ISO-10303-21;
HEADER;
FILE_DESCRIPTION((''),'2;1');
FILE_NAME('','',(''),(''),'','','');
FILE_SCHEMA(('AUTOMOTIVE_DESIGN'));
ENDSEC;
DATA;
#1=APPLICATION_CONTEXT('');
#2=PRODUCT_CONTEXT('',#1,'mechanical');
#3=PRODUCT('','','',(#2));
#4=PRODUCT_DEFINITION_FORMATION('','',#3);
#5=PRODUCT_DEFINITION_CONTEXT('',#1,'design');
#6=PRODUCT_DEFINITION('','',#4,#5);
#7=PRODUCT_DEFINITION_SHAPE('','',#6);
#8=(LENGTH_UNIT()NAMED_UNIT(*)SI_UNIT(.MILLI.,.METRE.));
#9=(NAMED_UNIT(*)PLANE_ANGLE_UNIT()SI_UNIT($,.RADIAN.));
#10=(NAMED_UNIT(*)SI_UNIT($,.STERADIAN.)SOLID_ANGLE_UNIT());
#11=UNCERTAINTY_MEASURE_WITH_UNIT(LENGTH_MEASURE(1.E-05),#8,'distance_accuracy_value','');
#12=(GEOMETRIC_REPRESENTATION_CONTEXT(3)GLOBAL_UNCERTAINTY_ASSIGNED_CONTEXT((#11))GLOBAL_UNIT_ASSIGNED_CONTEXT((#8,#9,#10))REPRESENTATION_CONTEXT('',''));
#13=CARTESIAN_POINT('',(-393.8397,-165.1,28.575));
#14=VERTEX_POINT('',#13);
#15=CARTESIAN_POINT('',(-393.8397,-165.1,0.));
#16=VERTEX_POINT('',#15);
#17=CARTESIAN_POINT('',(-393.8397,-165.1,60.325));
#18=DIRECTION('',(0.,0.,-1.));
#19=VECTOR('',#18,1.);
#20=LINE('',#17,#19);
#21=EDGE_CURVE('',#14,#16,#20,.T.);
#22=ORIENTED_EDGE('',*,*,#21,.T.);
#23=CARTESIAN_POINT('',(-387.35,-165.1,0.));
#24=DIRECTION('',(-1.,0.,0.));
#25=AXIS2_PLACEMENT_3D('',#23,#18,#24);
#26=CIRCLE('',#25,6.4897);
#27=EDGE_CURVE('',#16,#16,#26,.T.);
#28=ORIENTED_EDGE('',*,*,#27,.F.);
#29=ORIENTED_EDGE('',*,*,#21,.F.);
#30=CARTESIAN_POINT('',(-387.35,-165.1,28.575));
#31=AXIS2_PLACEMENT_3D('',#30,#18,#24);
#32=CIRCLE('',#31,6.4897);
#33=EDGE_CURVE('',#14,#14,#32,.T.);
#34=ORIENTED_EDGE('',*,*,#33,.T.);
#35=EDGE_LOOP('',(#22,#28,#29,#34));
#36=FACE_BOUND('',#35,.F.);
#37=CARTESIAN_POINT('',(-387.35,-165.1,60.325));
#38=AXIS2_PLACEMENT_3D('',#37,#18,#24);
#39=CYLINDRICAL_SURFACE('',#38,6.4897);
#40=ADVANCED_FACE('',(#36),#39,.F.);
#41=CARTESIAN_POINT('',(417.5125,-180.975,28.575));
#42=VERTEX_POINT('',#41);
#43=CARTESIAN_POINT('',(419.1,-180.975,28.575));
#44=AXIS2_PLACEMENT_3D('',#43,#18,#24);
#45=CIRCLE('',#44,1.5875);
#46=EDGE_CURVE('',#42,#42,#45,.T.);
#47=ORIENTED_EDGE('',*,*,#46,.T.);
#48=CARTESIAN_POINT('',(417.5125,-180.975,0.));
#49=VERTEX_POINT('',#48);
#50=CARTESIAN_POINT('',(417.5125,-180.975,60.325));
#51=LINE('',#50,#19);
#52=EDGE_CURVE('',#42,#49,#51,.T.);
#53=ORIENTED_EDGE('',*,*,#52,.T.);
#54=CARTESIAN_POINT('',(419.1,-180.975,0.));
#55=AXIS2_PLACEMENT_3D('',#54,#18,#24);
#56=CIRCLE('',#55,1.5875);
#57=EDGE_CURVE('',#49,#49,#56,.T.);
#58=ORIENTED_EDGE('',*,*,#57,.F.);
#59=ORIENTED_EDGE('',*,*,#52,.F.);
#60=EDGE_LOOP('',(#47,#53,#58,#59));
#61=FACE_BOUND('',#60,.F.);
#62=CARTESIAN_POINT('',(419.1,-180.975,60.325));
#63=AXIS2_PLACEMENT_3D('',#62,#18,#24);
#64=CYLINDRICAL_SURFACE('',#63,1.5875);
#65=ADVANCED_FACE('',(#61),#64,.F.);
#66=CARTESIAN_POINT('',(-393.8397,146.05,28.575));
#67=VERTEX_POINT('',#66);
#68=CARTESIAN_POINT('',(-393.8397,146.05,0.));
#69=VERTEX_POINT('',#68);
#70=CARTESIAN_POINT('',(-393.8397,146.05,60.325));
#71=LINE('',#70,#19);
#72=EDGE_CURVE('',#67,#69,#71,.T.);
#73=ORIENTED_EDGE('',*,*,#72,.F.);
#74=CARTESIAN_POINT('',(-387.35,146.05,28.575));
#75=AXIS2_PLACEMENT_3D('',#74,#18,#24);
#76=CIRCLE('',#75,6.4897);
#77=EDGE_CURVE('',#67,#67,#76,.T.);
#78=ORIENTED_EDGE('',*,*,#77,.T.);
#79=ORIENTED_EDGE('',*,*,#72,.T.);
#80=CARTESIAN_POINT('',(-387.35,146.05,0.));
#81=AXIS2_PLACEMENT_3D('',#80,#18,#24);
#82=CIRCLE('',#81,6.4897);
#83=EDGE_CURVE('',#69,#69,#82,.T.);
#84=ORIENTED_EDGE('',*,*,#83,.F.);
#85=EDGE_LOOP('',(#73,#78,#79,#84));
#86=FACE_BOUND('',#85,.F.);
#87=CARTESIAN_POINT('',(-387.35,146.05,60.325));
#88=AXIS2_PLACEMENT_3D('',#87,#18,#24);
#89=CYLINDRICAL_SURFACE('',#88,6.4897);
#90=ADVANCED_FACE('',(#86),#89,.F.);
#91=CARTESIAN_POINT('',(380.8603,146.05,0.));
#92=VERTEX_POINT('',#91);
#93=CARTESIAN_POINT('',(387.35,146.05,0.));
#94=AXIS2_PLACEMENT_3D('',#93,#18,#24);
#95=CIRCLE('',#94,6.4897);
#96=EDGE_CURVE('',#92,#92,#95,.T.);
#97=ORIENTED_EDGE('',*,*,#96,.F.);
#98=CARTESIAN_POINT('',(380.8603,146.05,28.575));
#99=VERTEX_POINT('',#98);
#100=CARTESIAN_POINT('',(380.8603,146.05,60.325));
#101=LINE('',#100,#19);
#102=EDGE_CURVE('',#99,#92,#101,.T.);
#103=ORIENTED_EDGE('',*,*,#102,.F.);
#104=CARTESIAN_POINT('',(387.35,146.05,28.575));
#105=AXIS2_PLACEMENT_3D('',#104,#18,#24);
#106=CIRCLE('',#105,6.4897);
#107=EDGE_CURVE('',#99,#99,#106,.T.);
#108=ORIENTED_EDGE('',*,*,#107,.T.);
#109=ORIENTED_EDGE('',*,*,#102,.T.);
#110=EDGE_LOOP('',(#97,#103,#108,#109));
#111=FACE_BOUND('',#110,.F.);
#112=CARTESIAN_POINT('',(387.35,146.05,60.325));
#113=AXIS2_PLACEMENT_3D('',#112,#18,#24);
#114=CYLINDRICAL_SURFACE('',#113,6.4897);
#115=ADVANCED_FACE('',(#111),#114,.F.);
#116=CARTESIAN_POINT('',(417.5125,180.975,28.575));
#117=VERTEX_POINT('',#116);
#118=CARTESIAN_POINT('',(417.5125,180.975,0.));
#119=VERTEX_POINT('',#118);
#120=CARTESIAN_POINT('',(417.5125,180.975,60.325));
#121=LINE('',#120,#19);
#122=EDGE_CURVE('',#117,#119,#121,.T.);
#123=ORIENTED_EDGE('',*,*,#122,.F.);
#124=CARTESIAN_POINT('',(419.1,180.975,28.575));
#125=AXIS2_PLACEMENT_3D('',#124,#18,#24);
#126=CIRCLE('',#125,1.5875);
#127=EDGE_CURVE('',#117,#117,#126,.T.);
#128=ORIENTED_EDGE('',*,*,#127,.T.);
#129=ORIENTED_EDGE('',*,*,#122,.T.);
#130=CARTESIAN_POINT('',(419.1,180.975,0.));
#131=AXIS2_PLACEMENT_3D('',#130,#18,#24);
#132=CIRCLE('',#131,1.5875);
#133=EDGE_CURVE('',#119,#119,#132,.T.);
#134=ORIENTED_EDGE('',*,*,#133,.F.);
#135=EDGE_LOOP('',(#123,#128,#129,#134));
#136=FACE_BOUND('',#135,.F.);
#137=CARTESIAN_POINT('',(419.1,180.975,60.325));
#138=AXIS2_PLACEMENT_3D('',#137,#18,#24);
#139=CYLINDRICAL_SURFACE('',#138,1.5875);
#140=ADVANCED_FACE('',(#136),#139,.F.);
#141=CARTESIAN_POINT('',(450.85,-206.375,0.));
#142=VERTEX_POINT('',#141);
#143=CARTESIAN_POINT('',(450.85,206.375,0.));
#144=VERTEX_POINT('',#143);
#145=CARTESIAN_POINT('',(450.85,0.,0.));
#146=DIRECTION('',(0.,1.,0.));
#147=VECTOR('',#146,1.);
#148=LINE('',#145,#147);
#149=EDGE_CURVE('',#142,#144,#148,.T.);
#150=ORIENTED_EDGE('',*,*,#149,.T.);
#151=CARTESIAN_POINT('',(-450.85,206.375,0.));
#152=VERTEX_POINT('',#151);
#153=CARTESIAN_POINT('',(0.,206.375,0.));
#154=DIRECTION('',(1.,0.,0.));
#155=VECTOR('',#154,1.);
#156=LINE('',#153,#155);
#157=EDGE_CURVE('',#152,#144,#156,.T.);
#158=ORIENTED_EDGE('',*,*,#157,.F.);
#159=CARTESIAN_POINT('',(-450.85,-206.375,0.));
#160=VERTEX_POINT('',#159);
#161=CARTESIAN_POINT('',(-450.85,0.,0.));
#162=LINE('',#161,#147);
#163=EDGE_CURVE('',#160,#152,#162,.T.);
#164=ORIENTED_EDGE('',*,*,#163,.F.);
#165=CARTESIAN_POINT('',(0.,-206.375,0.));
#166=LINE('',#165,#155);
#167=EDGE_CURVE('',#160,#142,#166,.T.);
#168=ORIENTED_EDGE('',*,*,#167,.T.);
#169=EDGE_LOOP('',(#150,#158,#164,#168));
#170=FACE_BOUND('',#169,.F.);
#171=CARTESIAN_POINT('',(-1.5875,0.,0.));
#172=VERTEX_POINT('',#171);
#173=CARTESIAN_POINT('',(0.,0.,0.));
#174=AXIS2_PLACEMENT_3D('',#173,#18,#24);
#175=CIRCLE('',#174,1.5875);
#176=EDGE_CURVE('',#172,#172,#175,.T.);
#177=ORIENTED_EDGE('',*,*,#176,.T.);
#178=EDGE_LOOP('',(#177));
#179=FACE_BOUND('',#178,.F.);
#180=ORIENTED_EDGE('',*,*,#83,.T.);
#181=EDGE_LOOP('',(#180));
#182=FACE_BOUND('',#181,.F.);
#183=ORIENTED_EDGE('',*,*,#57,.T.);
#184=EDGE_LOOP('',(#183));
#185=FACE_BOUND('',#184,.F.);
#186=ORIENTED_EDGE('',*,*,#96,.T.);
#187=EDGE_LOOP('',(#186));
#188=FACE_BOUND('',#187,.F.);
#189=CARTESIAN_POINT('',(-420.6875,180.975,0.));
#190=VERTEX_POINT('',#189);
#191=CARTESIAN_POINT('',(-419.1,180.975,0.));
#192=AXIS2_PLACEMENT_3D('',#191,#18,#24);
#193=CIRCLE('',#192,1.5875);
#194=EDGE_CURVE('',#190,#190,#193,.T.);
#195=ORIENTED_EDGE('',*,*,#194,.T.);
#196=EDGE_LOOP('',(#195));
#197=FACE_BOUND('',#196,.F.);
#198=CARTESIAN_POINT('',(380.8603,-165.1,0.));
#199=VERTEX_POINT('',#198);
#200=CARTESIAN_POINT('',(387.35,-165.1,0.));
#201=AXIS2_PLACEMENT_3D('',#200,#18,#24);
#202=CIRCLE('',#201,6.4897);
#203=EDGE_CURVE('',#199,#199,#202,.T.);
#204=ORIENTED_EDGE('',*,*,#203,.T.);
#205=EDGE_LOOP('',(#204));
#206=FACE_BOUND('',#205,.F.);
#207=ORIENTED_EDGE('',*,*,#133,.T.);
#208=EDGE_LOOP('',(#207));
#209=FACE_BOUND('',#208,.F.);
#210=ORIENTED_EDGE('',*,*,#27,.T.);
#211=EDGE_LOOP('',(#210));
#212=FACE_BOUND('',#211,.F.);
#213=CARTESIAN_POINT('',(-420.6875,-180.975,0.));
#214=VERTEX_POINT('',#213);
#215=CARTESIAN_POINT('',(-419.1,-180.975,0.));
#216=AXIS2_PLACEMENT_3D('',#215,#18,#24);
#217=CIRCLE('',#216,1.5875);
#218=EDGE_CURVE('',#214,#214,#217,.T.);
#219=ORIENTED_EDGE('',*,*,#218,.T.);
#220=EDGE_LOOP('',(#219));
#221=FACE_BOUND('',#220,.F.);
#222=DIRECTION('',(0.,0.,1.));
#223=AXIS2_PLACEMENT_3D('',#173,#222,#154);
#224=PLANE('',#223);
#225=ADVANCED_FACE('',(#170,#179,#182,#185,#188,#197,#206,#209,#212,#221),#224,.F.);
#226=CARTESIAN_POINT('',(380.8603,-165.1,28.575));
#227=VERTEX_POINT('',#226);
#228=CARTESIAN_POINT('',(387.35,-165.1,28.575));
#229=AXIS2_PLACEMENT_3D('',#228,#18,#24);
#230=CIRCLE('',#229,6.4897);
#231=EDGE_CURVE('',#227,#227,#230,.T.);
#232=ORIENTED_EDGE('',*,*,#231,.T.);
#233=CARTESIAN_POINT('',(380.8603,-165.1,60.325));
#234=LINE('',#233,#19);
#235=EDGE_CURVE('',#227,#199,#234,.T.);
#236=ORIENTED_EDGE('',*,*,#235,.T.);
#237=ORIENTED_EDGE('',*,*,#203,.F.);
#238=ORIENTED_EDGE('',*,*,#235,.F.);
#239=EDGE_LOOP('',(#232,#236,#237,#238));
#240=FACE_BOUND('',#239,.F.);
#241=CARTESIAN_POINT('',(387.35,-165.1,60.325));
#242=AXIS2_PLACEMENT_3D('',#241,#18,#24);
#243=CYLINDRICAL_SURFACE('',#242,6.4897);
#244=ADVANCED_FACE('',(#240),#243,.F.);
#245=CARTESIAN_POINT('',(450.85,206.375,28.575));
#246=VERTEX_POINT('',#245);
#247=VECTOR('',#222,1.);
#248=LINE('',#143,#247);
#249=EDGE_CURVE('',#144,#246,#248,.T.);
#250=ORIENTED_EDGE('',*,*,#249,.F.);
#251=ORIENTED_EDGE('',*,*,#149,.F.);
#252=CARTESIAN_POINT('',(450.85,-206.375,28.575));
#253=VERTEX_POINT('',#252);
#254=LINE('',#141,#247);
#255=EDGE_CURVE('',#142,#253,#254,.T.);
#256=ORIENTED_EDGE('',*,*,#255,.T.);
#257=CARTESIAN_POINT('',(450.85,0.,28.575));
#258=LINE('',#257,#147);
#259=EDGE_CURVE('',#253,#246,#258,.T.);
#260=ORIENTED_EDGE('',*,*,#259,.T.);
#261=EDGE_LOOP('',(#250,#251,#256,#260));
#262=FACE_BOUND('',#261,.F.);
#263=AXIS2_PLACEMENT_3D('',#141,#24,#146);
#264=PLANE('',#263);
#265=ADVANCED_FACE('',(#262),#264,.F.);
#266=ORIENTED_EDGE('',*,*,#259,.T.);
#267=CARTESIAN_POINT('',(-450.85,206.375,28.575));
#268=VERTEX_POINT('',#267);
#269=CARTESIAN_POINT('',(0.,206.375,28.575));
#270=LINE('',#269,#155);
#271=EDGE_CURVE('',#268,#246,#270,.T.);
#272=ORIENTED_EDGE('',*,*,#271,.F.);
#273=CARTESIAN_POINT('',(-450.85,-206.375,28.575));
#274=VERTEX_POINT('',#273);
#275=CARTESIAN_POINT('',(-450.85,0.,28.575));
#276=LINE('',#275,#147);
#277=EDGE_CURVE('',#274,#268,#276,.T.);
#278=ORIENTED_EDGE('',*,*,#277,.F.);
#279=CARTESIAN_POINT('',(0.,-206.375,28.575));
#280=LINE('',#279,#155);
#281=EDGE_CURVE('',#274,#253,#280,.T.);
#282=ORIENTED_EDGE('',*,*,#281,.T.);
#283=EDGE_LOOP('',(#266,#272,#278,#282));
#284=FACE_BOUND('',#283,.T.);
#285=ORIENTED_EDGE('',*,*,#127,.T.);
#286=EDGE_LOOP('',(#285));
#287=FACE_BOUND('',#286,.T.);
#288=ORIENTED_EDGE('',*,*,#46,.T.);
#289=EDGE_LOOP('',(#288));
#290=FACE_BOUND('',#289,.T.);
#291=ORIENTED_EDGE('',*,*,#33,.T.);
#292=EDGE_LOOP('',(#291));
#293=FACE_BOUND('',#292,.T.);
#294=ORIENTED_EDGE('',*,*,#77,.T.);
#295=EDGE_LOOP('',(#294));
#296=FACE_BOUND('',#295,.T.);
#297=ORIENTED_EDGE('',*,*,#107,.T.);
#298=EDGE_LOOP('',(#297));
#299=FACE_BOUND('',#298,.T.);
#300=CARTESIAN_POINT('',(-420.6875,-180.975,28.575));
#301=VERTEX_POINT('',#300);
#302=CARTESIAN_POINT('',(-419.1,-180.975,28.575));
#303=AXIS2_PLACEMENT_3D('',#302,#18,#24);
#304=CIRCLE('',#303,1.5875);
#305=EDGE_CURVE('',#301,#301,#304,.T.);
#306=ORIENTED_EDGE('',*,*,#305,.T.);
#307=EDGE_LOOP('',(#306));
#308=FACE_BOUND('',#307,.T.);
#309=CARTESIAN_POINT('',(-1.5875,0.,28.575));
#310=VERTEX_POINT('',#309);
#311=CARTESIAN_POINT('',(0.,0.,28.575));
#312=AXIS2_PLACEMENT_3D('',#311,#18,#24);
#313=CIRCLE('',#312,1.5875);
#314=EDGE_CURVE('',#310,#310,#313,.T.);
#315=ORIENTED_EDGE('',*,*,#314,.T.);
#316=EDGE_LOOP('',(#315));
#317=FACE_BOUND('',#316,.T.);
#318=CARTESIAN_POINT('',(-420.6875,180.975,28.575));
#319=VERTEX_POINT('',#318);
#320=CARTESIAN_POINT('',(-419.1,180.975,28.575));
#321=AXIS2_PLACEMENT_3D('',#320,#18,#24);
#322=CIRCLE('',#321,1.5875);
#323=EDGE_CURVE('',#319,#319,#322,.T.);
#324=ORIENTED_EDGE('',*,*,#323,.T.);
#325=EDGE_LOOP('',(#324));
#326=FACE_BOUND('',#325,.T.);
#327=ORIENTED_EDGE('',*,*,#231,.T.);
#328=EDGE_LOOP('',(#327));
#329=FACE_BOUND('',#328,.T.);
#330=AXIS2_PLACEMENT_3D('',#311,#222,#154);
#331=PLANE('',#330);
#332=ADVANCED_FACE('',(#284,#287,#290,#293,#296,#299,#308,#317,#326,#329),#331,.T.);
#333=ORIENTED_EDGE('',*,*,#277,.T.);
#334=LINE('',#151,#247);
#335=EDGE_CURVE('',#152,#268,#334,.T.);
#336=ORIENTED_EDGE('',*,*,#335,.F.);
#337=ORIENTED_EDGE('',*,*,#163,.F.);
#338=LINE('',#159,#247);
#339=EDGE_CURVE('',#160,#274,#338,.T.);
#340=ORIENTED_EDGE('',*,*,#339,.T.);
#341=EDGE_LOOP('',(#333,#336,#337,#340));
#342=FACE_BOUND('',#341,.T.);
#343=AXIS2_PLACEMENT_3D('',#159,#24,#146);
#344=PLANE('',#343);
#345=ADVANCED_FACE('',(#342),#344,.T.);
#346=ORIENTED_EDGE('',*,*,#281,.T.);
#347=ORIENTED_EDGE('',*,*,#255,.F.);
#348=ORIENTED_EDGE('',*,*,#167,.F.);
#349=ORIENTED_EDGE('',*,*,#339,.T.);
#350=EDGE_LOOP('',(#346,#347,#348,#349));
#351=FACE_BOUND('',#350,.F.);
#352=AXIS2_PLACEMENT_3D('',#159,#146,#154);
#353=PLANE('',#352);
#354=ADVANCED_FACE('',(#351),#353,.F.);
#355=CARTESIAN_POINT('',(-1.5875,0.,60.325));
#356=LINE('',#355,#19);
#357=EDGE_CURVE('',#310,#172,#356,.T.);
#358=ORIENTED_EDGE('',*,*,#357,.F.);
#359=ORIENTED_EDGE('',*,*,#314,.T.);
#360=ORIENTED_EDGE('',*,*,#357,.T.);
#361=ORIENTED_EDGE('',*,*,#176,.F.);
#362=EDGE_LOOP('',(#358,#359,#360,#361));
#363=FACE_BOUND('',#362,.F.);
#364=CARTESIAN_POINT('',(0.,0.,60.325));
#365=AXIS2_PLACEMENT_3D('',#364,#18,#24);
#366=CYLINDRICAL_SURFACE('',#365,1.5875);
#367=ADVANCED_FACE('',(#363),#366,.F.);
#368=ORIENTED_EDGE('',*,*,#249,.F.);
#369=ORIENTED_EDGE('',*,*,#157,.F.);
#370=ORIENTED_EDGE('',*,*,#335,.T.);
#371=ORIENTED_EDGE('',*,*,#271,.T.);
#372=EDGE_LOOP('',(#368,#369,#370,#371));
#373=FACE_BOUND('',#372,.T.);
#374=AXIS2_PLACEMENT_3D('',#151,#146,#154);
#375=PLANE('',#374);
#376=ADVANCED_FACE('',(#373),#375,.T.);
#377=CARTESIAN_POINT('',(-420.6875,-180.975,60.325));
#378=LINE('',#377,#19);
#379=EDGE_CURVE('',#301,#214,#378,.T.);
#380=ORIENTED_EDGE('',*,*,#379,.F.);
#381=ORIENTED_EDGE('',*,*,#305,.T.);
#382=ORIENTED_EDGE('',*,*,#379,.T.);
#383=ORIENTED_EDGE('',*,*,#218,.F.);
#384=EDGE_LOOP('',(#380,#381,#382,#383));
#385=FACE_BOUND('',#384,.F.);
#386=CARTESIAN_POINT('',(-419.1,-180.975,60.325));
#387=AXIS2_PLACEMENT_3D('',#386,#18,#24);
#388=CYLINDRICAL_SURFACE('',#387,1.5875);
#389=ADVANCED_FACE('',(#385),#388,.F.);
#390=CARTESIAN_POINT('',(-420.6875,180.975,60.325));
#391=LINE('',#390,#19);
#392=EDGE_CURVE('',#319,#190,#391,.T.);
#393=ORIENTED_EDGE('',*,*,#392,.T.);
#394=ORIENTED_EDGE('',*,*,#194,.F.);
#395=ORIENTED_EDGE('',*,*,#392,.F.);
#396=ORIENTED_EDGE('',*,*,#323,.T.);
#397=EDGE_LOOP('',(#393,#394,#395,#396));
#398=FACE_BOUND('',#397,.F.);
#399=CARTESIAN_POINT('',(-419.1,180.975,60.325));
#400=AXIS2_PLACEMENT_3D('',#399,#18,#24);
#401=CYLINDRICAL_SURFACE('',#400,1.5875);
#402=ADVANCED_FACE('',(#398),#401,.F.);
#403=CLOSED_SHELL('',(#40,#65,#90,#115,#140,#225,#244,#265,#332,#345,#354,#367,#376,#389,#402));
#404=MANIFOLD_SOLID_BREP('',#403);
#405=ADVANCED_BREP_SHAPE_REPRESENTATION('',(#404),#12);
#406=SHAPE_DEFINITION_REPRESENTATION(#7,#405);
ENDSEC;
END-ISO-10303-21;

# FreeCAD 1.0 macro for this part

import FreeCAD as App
import Part
import Sketcher
Q = App.Units.Quantity

doc = App.newDocument("Part")
body = doc.addObject("PartDesign::Body", "Body")

# Sketch on XY plane
sketch1 = body.newObject("Sketcher::SketchObject", "Sketch")
sketch1.AttachmentSupport = (doc.getObject("XY_Plane"), [""])
sketch1.MapMode = "FlatFace"
sketch1.addGeometry([
    Part.LineSegment(App.Vector(-451, 206, 0), App.Vector(-451, -206, 0)),
    Part.LineSegment(App.Vector(-451, -206, 0), App.Vector(451, -206, 0)),
    Part.LineSegment(App.Vector(451, -206, 0), App.Vector(451, 206, 0)),
    Part.LineSegment(App.Vector(451, 206, 0), App.Vector(-451, 206, 0)),
], False)
sketch1.addConstraint([
    Sketcher.Constraint("Coincident", 0, 2, 1, 1),
    Sketcher.Constraint("Coincident", 1, 2, 2, 1),
    Sketcher.Constraint("Coincident", 2, 2, 3, 1),
    Sketcher.Constraint("Coincident", 3, 2, 0, 1),
    Sketcher.Constraint("Vertical", 0),
    Sketcher.Constraint("Horizontal", 1),
    Sketcher.Constraint("Vertical", 2),
    Sketcher.Constraint("Horizontal", 3),
    Sketcher.Constraint("Symmetric", 0, 2, 2, 2, -1, 1),
    Sketcher.Constraint("DistanceX", 1, 1, 1, 2, Q("35.5 in")),
    Sketcher.Constraint("DistanceY", 0, 2, 0, 1, Q("16.25 in")),
])
pad1 = body.newObject("PartDesign::Pad", "Pad")
pad1.Profile = sketch1
pad1.Length = Q("1.125 in")

# Sketch on XY plane
sketch2 = body.newObject("Sketcher::SketchObject", "Sketch001")
sketch2.AttachmentSupport = (doc.getObject("XY_Plane"), [""])
sketch2.MapMode = "FlatFace"
sketch2.AttachmentOffset = App.Placement(App.Vector(0, 0, 1.125 * 25.4), App.Rotation())
sketch2.addGeometry([
    Part.Circle(App.Vector(-387, 146, 0), App.Vector(0, 0, 1), 6),
    Part.Circle(App.Vector(-387, -165, 0), App.Vector(0, 0, 1), 6),
    Part.Circle(App.Vector(387, -165, 0), App.Vector(0, 0, 1), 6),
    Part.Circle(App.Vector(387, 146, 0), App.Vector(0, 0, 1), 6),
], False)
sketch2.addConstraint([
    Sketcher.Constraint("Equal", 0, 1),
    Sketcher.Constraint("Equal", 1, 2),
    Sketcher.Constraint("Equal", 2, 3),
    Sketcher.Constraint("Symmetric", 1, 3, 2, 3, -2),
    Sketcher.Constraint("Symmetric", 0, 3, 3, 3, -2),
    Sketcher.Constraint("Vertical", 0, 3, 1, 3),
    Sketcher.Constraint("Diameter", 0, Q("0.511 in")),
    Sketcher.Constraint("DistanceY", 1, 3, -1, 1, Q("6.5 in")),
    Sketcher.Constraint("DistanceX", 1, 3, 2, 3, Q("30.5 in")),
    Sketcher.Constraint("DistanceY", -1, 1, 0, 3, Q("5.75 in")),
])
doc.recompute()
hole = body.newObject("PartDesign::Hole", "Hole")
hole.Profile = sketch2
hole.ThreadType = "None"
hole.Diameter = Q("0.511 in")
hole.DepthType = "Dimension"
hole.Depth = Q("1.25 in")
hole.DrillPoint = "Flat"

# Sketch on XY plane
sketch3 = body.newObject("Sketcher::SketchObject", "Sketch002")
sketch3.AttachmentSupport = (doc.getObject("XY_Plane"), [""])
sketch3.MapMode = "FlatFace"
sketch3.AttachmentOffset = App.Placement(App.Vector(0, 0, 1.125 * 25.4), App.Rotation())
sketch3.addGeometry([
    Part.Circle(App.Vector(-419.1, 181, 0), App.Vector(0, 0, 1), 1.6),  # 0
    Part.Circle(App.Vector(-419.1, -181, 0), App.Vector(0, 0, 1), 1.6),  # 1
    Part.Circle(App.Vector(419.1, -181, 0), App.Vector(0, 0, 1), 1.6),  # 2
    Part.Circle(App.Vector(419.1, 181, 0), App.Vector(0, 0, 1), 1.6),  # 3
    Part.Circle(App.Vector(0, 0, 0), App.Vector(0, 0, 1), 1.6),  # 4
], False)
sketch3.addConstraint([
    Sketcher.Constraint("Coincident", 4, 3, -1, 1),
    Sketcher.Constraint("Equal", 0, 1),
    Sketcher.Constraint("Equal", 1, 2),
    Sketcher.Constraint("Equal", 2, 3),
    Sketcher.Constraint("Equal", 3, 4),
    Sketcher.Constraint("Symmetric", 0, 3, 2, 3, -1, 1),
    Sketcher.Constraint("Symmetric", 1, 3, 3, 3, -1, 1),
    Sketcher.Constraint("Symmetric", 1, 3, 2, 3, -2),
    Sketcher.Constraint("Diameter", 0, Q("0.125 in")),
    Sketcher.Constraint("DistanceX", 1, 3, 2, 3, Q("33 in")),
    Sketcher.Constraint("DistanceY", 1, 3, 0, 3, Q("14.25 in")),
])
doc.recompute()
hole2 = body.newObject("PartDesign::Hole", "Hole001")
hole2.Profile = sketch3
hole2.ThreadType = "None"
hole2.Diameter = Q("0.125 in")
hole2.DepthType = "Dimension"
hole2.Depth = Q("1.25 in")
hole2.DrillPoint = "Flat"

doc.recompute()
